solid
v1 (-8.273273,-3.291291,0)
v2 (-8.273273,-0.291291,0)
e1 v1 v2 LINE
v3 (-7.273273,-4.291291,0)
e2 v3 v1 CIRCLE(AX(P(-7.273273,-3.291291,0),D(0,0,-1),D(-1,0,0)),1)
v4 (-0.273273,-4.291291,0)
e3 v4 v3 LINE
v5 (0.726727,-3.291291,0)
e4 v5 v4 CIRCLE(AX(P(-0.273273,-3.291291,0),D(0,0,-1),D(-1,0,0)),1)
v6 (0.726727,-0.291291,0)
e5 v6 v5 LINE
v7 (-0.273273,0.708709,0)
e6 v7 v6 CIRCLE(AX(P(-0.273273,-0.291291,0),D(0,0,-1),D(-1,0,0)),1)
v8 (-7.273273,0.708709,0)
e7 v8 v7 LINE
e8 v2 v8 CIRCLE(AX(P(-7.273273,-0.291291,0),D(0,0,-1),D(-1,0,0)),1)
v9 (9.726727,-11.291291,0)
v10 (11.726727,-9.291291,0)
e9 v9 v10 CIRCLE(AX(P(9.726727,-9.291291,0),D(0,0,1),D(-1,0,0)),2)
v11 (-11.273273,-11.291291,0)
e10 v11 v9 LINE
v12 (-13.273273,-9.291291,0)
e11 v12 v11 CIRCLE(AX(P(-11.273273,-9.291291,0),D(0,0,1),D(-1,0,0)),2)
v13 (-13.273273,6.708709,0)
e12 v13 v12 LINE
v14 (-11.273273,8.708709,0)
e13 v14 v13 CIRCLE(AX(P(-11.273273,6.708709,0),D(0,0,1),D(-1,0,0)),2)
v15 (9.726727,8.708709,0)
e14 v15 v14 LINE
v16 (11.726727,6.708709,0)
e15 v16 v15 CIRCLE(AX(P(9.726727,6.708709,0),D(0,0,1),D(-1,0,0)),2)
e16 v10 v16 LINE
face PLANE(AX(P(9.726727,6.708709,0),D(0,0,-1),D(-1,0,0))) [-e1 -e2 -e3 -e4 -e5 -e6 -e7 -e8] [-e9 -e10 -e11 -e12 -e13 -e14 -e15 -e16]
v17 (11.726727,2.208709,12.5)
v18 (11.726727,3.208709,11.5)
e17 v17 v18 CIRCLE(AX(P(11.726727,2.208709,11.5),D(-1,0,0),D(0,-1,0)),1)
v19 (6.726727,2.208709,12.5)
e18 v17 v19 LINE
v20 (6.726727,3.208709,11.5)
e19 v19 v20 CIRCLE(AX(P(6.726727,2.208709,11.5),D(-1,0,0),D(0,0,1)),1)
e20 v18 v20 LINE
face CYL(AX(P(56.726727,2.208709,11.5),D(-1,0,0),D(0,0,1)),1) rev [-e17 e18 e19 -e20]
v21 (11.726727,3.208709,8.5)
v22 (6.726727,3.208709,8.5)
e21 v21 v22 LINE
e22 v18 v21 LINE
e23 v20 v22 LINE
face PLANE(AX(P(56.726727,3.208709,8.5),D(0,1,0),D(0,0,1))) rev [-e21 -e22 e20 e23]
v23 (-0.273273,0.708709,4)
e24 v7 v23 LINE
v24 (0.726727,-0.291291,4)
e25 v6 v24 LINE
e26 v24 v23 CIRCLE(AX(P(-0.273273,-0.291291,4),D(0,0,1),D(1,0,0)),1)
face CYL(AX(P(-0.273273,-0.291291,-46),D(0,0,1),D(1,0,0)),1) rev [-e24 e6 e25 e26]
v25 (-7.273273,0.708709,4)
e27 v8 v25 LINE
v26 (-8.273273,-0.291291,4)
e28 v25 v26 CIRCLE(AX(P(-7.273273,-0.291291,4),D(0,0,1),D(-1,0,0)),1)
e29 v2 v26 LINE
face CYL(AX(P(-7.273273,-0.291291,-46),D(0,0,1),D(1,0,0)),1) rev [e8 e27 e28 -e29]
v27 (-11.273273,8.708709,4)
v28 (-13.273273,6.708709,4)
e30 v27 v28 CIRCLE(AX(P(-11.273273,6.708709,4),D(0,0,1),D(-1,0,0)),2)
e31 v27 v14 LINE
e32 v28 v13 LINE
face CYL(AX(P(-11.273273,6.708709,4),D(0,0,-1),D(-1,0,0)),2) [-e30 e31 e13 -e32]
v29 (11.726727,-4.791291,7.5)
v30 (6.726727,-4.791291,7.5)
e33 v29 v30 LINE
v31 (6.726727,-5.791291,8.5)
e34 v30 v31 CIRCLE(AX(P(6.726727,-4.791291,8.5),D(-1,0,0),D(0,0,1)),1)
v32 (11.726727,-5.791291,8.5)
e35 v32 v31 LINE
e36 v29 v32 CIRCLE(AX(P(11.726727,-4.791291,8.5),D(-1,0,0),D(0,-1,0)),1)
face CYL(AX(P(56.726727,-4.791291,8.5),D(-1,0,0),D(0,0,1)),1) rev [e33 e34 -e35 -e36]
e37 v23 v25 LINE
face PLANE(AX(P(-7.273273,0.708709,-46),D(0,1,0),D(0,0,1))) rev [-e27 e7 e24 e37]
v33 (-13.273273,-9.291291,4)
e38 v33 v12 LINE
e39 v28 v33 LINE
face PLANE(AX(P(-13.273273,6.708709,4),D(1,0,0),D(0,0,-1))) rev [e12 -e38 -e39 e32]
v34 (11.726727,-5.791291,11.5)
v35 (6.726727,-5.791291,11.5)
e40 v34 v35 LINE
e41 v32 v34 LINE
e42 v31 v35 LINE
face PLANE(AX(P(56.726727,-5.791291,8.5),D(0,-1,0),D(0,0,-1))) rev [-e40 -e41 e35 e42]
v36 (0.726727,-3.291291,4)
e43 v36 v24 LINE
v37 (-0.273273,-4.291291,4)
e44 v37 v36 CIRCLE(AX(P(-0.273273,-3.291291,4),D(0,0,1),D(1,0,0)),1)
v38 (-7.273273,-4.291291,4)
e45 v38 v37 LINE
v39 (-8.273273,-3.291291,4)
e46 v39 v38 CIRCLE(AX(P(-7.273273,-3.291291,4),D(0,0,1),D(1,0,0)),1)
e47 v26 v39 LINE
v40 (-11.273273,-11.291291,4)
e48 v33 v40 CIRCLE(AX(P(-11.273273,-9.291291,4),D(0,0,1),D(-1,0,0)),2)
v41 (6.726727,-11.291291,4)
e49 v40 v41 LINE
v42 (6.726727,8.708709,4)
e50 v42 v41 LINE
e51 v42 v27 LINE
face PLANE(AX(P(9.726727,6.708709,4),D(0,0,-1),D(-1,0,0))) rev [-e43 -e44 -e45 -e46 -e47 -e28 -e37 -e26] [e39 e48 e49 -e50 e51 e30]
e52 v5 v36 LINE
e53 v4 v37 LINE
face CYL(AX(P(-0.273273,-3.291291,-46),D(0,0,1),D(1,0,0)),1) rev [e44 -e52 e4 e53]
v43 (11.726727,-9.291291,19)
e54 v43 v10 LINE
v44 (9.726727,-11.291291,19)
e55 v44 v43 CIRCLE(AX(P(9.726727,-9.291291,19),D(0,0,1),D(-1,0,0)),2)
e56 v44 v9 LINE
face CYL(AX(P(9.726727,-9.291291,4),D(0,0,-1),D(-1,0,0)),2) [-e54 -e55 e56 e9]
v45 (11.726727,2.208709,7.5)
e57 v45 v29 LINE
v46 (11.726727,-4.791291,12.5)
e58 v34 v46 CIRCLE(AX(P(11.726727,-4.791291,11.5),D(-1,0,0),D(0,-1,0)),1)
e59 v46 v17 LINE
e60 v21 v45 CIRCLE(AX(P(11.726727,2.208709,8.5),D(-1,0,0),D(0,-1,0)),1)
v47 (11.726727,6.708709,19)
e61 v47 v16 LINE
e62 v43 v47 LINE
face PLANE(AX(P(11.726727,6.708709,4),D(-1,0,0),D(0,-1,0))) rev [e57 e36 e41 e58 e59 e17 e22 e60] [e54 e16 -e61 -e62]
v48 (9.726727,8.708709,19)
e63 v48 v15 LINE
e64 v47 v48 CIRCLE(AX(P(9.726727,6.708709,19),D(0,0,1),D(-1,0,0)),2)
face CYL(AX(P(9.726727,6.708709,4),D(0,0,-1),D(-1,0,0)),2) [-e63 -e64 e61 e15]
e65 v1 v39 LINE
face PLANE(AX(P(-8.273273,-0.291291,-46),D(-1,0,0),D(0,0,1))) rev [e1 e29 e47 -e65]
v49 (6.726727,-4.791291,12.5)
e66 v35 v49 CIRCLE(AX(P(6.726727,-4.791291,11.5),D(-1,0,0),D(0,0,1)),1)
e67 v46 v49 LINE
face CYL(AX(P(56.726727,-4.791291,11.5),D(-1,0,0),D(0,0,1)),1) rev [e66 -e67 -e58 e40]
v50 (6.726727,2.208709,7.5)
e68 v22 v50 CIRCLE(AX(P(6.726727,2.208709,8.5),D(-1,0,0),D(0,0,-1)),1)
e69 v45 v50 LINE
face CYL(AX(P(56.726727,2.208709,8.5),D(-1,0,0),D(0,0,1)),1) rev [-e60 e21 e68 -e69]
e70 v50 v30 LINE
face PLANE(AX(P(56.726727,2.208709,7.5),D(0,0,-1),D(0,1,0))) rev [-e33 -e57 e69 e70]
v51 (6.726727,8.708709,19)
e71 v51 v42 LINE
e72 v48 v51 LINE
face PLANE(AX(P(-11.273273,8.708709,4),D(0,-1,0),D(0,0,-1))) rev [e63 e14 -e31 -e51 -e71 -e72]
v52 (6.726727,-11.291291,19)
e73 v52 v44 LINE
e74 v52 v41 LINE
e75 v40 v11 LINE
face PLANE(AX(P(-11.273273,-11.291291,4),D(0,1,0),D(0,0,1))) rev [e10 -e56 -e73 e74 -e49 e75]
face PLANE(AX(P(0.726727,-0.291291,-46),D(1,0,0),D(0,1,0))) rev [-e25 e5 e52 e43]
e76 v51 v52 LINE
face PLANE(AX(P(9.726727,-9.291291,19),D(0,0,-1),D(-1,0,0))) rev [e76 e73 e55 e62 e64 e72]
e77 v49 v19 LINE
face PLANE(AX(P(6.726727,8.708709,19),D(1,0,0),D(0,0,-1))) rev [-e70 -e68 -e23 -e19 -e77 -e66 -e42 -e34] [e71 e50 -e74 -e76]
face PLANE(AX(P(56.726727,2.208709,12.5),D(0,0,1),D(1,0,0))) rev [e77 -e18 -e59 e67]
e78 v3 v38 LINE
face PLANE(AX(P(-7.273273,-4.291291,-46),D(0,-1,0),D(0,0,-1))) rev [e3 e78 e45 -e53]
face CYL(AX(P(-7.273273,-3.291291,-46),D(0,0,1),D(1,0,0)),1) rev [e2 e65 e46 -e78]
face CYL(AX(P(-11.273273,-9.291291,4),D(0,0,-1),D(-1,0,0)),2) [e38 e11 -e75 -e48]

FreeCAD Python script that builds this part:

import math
import FreeCAD as App
import Part
import Sketcher
Q = App.Units.Quantity

doc = App.newDocument("Part")
body = doc.addObject("PartDesign::Body", "Body")

# Sketch on XY plane
sketch1 = body.newObject("Sketcher::SketchObject", "Sketch")
sketch1.AttachmentSupport = (doc.getObject("XY_Plane"), [""])
sketch1.MapMode = "FlatFace"
sketch1.addGeometry([
    Part.LineSegment(App.Vector(9.7, 8.7, 0), App.Vector(-11.3, 8.7, 0)),  # 0
    Part.ArcOfCircle(Part.Circle(App.Vector(-11.3, 6.7, 0), App.Vector(0, 0, 1), 2), math.radians(90), math.radians(180)),  # 1
    Part.LineSegment(App.Vector(-13.3, 6.7, 0), App.Vector(-13.3, -9.3, 0)),  # 2
    Part.ArcOfCircle(Part.Circle(App.Vector(-11.3, -9.3, 0), App.Vector(0, 0, 1), 2), math.radians(180), math.radians(270)),  # 3
    Part.LineSegment(App.Vector(-11.3, -11.3, 0), App.Vector(9.7, -11.3, 0)),  # 4
    Part.ArcOfCircle(Part.Circle(App.Vector(9.7, -9.3, 0), App.Vector(0, 0, 1), 2), math.radians(-90), math.radians(0)),  # 5
    Part.LineSegment(App.Vector(11.7, -9.3, 0), App.Vector(11.7, 6.7, 0)),  # 6
    Part.ArcOfCircle(Part.Circle(App.Vector(9.7, 6.7, 0), App.Vector(0, 0, 1), 2), math.radians(0), math.radians(90)),  # 7
], False)
sketch1.addConstraint([
    Sketcher.Constraint("Tangent", 0, 2, 1, 1),
    Sketcher.Constraint("Tangent", 1, 2, 2, 1),
    Sketcher.Constraint("Tangent", 2, 2, 3, 1),
    Sketcher.Constraint("Tangent", 3, 2, 4, 1),
    Sketcher.Constraint("Tangent", 4, 2, 5, 1),
    Sketcher.Constraint("Tangent", 5, 2, 6, 1),
    Sketcher.Constraint("Tangent", 6, 2, 7, 1),
    Sketcher.Constraint("Tangent", 7, 2, 0, 1),
    Sketcher.Constraint("Horizontal", 0),
    Sketcher.Constraint("Vertical", 2),
    Sketcher.Constraint("Horizontal", 4),
    Sketcher.Constraint("Vertical", 6),
    Sketcher.Constraint("Equal", 1, 3),
    Sketcher.Constraint("Equal", 3, 5),
    Sketcher.Constraint("Equal", 5, 7),
    Sketcher.Constraint("Radius", 1, Q("2 mm")),
    Sketcher.Constraint("DistanceX", 0, 2, 0, 1, Q("21 mm")),
    Sketcher.Constraint("DistanceY", 2, 2, 2, 1, Q("16 mm")),
    Sketcher.Constraint("DistanceY", -1, 1, 1, 3, Q("6.708709 mm")),
    Sketcher.Constraint("DistanceX", 1, 3, -1, 1, Q("11.273273 mm")),
])
pad1 = body.newObject("PartDesign::Pad", "Pad")
pad1.Profile = sketch1
pad1.Length = 4

# Sketch on XY plane
sketch2 = body.newObject("Sketcher::SketchObject", "Sketch001")
sketch2.AttachmentSupport = (doc.getObject("XY_Plane"), [""])
sketch2.MapMode = "FlatFace"
sketch2.AttachmentOffset = App.Placement(App.Vector(0, 0, 4), App.Rotation())
sketch2.addGeometry([
    Part.LineSegment(App.Vector(9.7, 8.7, 0), App.Vector(6.7, 8.7, 0)),  # 0
    Part.LineSegment(App.Vector(6.7, 8.7, 0), App.Vector(6.7, -11.3, 0)),  # 1
    Part.LineSegment(App.Vector(6.7, -11.3, 0), App.Vector(9.7, -11.3, 0)),  # 2
    Part.ArcOfCircle(Part.Circle(App.Vector(9.7, -9.3, 0), App.Vector(0, 0, 1), 2), math.radians(-90), math.radians(0)),  # 3
    Part.LineSegment(App.Vector(11.7, -9.3, 0), App.Vector(11.7, 6.7, 0)),  # 4
    Part.ArcOfCircle(Part.Circle(App.Vector(9.7, 6.7, 0), App.Vector(0, 0, 1), 2), math.radians(0), math.radians(90)),  # 5
], False)
sketch2.addConstraint([
    Sketcher.Constraint("Coincident", 0, 2, 1, 1),
    Sketcher.Constraint("Coincident", 1, 2, 2, 1),
    Sketcher.Constraint("Tangent", 2, 2, 3, 1),
    Sketcher.Constraint("Tangent", 3, 2, 4, 1),
    Sketcher.Constraint("Tangent", 4, 2, 5, 1),
    Sketcher.Constraint("Tangent", 5, 2, 0, 1),
    Sketcher.Constraint("Horizontal", 0),
    Sketcher.Constraint("Vertical", 1),
    Sketcher.Constraint("Horizontal", 2),
    Sketcher.Constraint("Vertical", 4),
    Sketcher.Constraint("Equal", 3, 5),
    Sketcher.Constraint("Radius", 3, Q("2 mm")),
    Sketcher.Constraint("DistanceX", 0, 2, 0, 1, Q("3 mm")),
    Sketcher.Constraint("DistanceY", 1, 2, 1, 1, Q("20 mm")),
    Sketcher.Constraint("DistanceY", 3, 3, -1, 1, Q("9.291291 mm")),
    Sketcher.Constraint("DistanceX", -1, 1, 3, 3, Q("9.726727 mm")),
])
pad2 = body.newObject("PartDesign::Pad", "Pad001")
pad2.Profile = sketch2
pad2.Length = 15

# Sketch on XY plane
sketch3 = body.newObject("Sketcher::SketchObject", "Sketch002")
sketch3.AttachmentSupport = (doc.getObject("XY_Plane"), [""])
sketch3.MapMode = "FlatFace"
sketch3.AttachmentOffset = App.Placement(App.Vector(0, 0, 4), App.Rotation())
sketch3.addGeometry([
    Part.LineSegment(App.Vector(-0.3, 0.7, 0), App.Vector(-7.3, 0.7, 0)),  # 0
    Part.ArcOfCircle(Part.Circle(App.Vector(-7.3, -0.3, 0), App.Vector(0, 0, 1), 1), math.radians(90), math.radians(180)),  # 1
    Part.LineSegment(App.Vector(-8.3, -0.3, 0), App.Vector(-8.3, -3.3, 0)),  # 2
    Part.ArcOfCircle(Part.Circle(App.Vector(-7.3, -3.3, 0), App.Vector(0, 0, 1), 1), math.radians(-180), math.radians(-90)),  # 3
    Part.LineSegment(App.Vector(-7.3, -4.3, 0), App.Vector(-0.3, -4.3, 0)),  # 4
    Part.ArcOfCircle(Part.Circle(App.Vector(-0.3, -3.3, 0), App.Vector(0, 0, 1), 1), math.radians(-90), math.radians(0)),  # 5
    Part.LineSegment(App.Vector(0.7, -3.3, 0), App.Vector(0.7, -0.3, 0)),  # 6
    Part.ArcOfCircle(Part.Circle(App.Vector(-0.3, -0.3, 0), App.Vector(0, 0, 1), 1), math.radians(0), math.radians(90)),  # 7
], False)
sketch3.addConstraint([
    Sketcher.Constraint("Tangent", 0, 2, 1, 1),
    Sketcher.Constraint("Tangent", 1, 2, 2, 1),
    Sketcher.Constraint("Tangent", 2, 2, 3, 1),
    Sketcher.Constraint("Tangent", 3, 2, 4, 1),
    Sketcher.Constraint("Tangent", 4, 2, 5, 1),
    Sketcher.Constraint("Tangent", 5, 2, 6, 1),
    Sketcher.Constraint("Tangent", 6, 2, 7, 1),
    Sketcher.Constraint("Tangent", 7, 2, 0, 1),
    Sketcher.Constraint("Horizontal", 0),
    Sketcher.Constraint("Vertical", 2),
    Sketcher.Constraint("Horizontal", 4),
    Sketcher.Constraint("Vertical", 6),
    Sketcher.Constraint("Equal", 1, 3),
    Sketcher.Constraint("Equal", 3, 5),
    Sketcher.Constraint("Equal", 5, 7),
    Sketcher.Constraint("Radius", 1, Q("1 mm")),
    Sketcher.Constraint("DistanceX", 0, 2, 0, 1, Q("7 mm")),
    Sketcher.Constraint("DistanceY", 2, 2, 2, 1, Q("3 mm")),
    Sketcher.Constraint("DistanceY", 1, 3, -1, 1, Q("0.291291 mm")),
    Sketcher.Constraint("DistanceX", 1, 3, -1, 1, Q("7.273273 mm")),
])
pocket1 = body.newObject("PartDesign::Pocket", "Pocket")
pocket1.Profile = sketch3
pocket1.Length = 50

# Sketch on YZ plane
sketch4 = body.newObject("Sketcher::SketchObject", "Sketch003")
sketch4.AttachmentSupport = (doc.getObject("YZ_Plane"), [""])
sketch4.MapMode = "FlatFace"
sketch4.AttachmentOffset = App.Placement(App.Vector(0, 0, 6.726727), App.Rotation())
sketch4.addGeometry([
    Part.LineSegment(App.Vector(3.2, 11.5, 0), App.Vector(3.2, 8.5, 0)),  # 0
    Part.ArcOfCircle(Part.Circle(App.Vector(2.2, 8.5, 0), App.Vector(0, 0, 1), 1), math.radians(-90), math.radians(0)),  # 1
    Part.LineSegment(App.Vector(2.2, 7.5, 0), App.Vector(-4.8, 7.5, 0)),  # 2
    Part.ArcOfCircle(Part.Circle(App.Vector(-4.8, 8.5, 0), App.Vector(0, 0, 1), 1), math.radians(-180), math.radians(-90)),  # 3
    Part.LineSegment(App.Vector(-5.8, 8.5, 0), App.Vector(-5.8, 11.5, 0)),  # 4
    Part.ArcOfCircle(Part.Circle(App.Vector(-4.8, 11.5, 0), App.Vector(0, 0, 1), 1), math.radians(90), math.radians(180)),  # 5
    Part.LineSegment(App.Vector(-4.8, 12.5, 0), App.Vector(2.2, 12.5, 0)),  # 6
    Part.ArcOfCircle(Part.Circle(App.Vector(2.2, 11.5, 0), App.Vector(0, 0, 1), 1), math.radians(0), math.radians(90)),  # 7
], False)
sketch4.addConstraint([
    Sketcher.Constraint("Tangent", 0, 2, 1, 2),
    Sketcher.Constraint("Tangent", 1, 1, 2, 1),
    Sketcher.Constraint("Tangent", 2, 2, 3, 2),
    Sketcher.Constraint("Tangent", 3, 1, 4, 1),
    Sketcher.Constraint("Tangent", 4, 2, 5, 2),
    Sketcher.Constraint("Tangent", 5, 1, 6, 1),
    Sketcher.Constraint("Tangent", 6, 2, 7, 2),
    Sketcher.Constraint("Tangent", 7, 1, 0, 1),
    Sketcher.Constraint("Vertical", 0),
    Sketcher.Constraint("Horizontal", 2),
    Sketcher.Constraint("Vertical", 4),
    Sketcher.Constraint("Horizontal", 6),
    Sketcher.Constraint("Equal", 1, 3),
    Sketcher.Constraint("Equal", 3, 5),
    Sketcher.Constraint("Equal", 5, 7),
    Sketcher.Constraint("Radius", 1, Q("1 mm")),
    Sketcher.Constraint("DistanceX", 2, 2, 2, 1, Q("7 mm")),
    Sketcher.Constraint("DistanceY", 0, 2, 0, 1, Q("3 mm")),
    Sketcher.Constraint("DistanceY", -1, 1, 1, 3, Q("8.5 mm")),
    Sketcher.Constraint("DistanceX", -1, 1, 1, 3, Q("2.208709 mm")),
])
pocket2 = body.newObject("PartDesign::Pocket", "Pocket001")
pocket2.Profile = sketch4
pocket2.Length = 50
pocket2.Reversed = True

doc.recompute()
